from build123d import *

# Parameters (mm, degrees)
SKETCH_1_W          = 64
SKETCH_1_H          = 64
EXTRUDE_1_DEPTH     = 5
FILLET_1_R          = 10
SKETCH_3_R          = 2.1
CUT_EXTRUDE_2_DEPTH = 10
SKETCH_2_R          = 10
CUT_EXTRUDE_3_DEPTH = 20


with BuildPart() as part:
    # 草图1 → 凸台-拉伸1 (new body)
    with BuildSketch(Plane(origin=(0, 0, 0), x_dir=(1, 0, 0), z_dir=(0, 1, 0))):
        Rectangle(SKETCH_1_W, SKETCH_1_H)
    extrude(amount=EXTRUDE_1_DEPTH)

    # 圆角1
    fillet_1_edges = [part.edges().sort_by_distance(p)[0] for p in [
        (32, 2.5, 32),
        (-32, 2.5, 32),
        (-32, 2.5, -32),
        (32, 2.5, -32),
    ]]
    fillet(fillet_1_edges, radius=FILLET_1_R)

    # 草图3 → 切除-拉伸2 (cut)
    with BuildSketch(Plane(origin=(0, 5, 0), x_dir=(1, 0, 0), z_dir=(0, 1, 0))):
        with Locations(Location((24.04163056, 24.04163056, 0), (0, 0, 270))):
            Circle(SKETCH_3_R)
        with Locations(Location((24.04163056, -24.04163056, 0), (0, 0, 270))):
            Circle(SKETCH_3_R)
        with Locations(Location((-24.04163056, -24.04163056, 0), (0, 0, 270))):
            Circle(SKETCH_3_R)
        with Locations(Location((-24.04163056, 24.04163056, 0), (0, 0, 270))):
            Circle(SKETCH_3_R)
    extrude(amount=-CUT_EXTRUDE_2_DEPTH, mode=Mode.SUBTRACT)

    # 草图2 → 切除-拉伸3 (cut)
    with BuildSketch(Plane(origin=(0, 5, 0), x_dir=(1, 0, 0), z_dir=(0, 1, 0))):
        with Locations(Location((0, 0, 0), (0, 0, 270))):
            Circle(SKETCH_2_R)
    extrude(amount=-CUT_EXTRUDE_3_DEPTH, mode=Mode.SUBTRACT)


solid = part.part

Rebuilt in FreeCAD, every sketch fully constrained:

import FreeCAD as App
import Part
import Sketcher

V = App.Vector
Q = App.Units.Quantity


def edges_at(feature, points):
    """Names of the edges that pass closest to the given points."""
    edges = feature.Shape.Edges
    near = lambda p: min(range(len(edges)), key=lambda i: edges[i].distToShape(Part.Vertex(*p))[0])
    return sorted({f"Edge{near(p) + 1}" for p in points})


def add_polygon(sketch, points):
    """Adds a closed chain of lines whose ends are joined by coincident constraints."""
    first, n = sketch.GeometryCount, len(points)
    for a, b in zip(points, points[1:] + points[:1]):
        sketch.addGeometry(Part.LineSegment(App.Vector(*a, 0), App.Vector(*b, 0)), False)
    for i in range(n):
        sketch.addConstraint(Sketcher.Constraint("Coincident", first + i, 2, first + (i + 1) % n, 1))

doc = App.newDocument("Part")
params = doc.addObject("Spreadsheet::Sheet", "Params")
for row, (alias, value) in enumerate([
    ("sketch1_width", "64 mm"),
    ("pad1_length", "5 mm"),
    ("fillet_radius", "10 mm"),
    ("sketch2_diameter", "4.2 mm"),
    ("pocket1_length", "10 mm"),
    ("sketch3_diameter", "20 mm"),
    ("pocket2_length", "20 mm"),
], start=1):
    params.set(f"A{row}", alias)
    params.set(f"B{row}", "=" + value)
    params.setAlias(f"B{row}", alias)

body = doc.addObject("PartDesign::Body", "Body")

# Sketch on XZ plane
sketch1 = doc.addObject("Sketcher::SketchObject", "Sketch")
body.addObject(sketch1)
sketch1.AttachmentSupport = (doc.XZ_Plane, [""])
sketch1.MapMode = "FlatFace"
add_polygon(sketch1, [(-32, -32), (-32, 32), (32, 32), (32, -32)])  # lines 0-3
sketch1.addConstraint(Sketcher.Constraint("Vertical", 0))
sketch1.addConstraint(Sketcher.Constraint("Horizontal", 1))
sketch1.addConstraint(Sketcher.Constraint("Vertical", 2))
sketch1.addConstraint(Sketcher.Constraint("Horizontal", 3))
sketch1.addConstraint(Sketcher.Constraint("Symmetric", 0, 2, 2, 2, -1, 1))
sketch1.addConstraint(Sketcher.Constraint("Equal", 3, 0))
sketch1.addConstraint(Sketcher.Constraint("DistanceX", 1, 1, 1, 2, Q("64 mm")))
sketch1.setExpression("Constraints[10]", "Params.sketch1_width")
pad1 = doc.addObject("PartDesign::Pad", "Pad")
body.addObject(pad1)
pad1.Profile = sketch1
pad1.setExpression("Length", "Params.pad1_length")
pad1.Reversed = True
doc.recompute()

fillet = doc.addObject("PartDesign::Fillet", "Fillet")
body.addObject(fillet)
fillet.Base = (pad1, edges_at(pad1, [
    (32, 2.5, 32),
    (-32, 2.5, 32),
    (-32, 2.5, -32),
    (32, 2.5, -32),
]))
fillet.setExpression("Radius", "Params.fillet_radius")

# Sketch on XZ plane
sketch2 = doc.addObject("Sketcher::SketchObject", "Sketch001")
body.addObject(sketch2)
sketch2.AttachmentSupport = (doc.XZ_Plane, [""])
sketch2.MapMode = "FlatFace"
sketch2.AttachmentOffset = App.Placement(V(0, 0, -5), App.Rotation())
sketch2.addGeometry(Part.Circle(V(24, -24, 0), V(0, 0, 1), 2.1), False)
sketch2.addGeometry(Part.Circle(V(24, 24, 0), V(0, 0, 1), 2.1), False)
sketch2.addGeometry(Part.Circle(V(-24, 24, 0), V(0, 0, 1), 2.1), False)
sketch2.addGeometry(Part.Circle(V(-24, -24, 0), V(0, 0, 1), 2.1), False)
sketch2.addConstraint(Sketcher.Constraint("Equal", 0, 1))
sketch2.addConstraint(Sketcher.Constraint("Equal", 1, 2))
sketch2.addConstraint(Sketcher.Constraint("Equal", 2, 3))
sketch2.addConstraint(Sketcher.Constraint("Symmetric", 0, 3, 2, 3, -1, 1))
sketch2.addConstraint(Sketcher.Constraint("Symmetric", 1, 3, 3, 3, -1, 1))
sketch2.addConstraint(Sketcher.Constraint("Symmetric", 1, 3, 2, 3, -2))
sketch2.addConstraint(Sketcher.Constraint("Diameter", 0, Q("4.2 mm")))
sketch2.addConstraint(Sketcher.Constraint("DistanceX", -1, 1, 0, 3, Q("24.041631 mm")))
sketch2.addConstraint(Sketcher.Constraint("DistanceY", 0, 3, -1, 1, Q("24.041631 mm")))
sketch2.setExpression("Constraints[6]", "Params.sketch2_diameter")
pocket1 = doc.addObject("PartDesign::Pocket", "Pocket")
body.addObject(pocket1)
pocket1.Profile = sketch2
pocket1.setExpression("Length", "Params.pocket1_length")
pocket1.Reversed = True

# Sketch on XZ plane
sketch3 = doc.addObject("Sketcher::SketchObject", "Sketch002")
body.addObject(sketch3)
sketch3.AttachmentSupport = (doc.XZ_Plane, [""])
sketch3.MapMode = "FlatFace"
sketch3.AttachmentOffset = App.Placement(V(0, 0, -5), App.Rotation())
sketch3.addGeometry(Part.Circle(V(0, 0, 0), V(0, 0, 1), 10), False)
sketch3.addConstraint(Sketcher.Constraint("Coincident", 0, 3, -1, 1))
sketch3.addConstraint(Sketcher.Constraint("Diameter", 0, Q("20 mm")))
sketch3.setExpression("Constraints[1]", "Params.sketch3_diameter")
pocket2 = doc.addObject("PartDesign::Pocket", "Pocket001")
body.addObject(pocket2)
pocket2.Profile = sketch3
pocket2.setExpression("Length", "Params.pocket2_length")
pocket2.Reversed = True

doc.recompute()
